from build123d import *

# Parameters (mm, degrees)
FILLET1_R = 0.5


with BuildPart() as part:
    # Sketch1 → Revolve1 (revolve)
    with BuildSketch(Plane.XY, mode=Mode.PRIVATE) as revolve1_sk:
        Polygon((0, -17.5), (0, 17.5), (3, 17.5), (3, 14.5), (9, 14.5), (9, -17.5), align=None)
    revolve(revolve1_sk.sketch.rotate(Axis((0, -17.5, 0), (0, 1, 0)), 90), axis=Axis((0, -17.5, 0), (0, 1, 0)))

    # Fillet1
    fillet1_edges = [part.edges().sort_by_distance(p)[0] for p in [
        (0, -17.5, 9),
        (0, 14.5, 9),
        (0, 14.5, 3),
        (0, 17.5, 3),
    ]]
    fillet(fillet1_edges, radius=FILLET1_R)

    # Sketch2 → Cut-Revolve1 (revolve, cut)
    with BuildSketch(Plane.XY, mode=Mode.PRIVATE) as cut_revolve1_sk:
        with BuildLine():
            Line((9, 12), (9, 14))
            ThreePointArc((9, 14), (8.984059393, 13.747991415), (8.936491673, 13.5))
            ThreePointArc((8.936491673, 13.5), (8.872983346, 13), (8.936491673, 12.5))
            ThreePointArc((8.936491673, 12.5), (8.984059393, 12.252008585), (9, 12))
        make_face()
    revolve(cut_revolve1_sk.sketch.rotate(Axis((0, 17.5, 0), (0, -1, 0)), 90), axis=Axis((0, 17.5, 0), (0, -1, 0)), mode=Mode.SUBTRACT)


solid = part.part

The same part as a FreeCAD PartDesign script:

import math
import FreeCAD as App
import Part
import Sketcher
from FreeCAD import Vector


def edges_at(feature, points):
    """Names of the edges that pass closest to the given points."""
    edges = feature.Shape.Edges
    near = lambda p: min(range(len(edges)), key=lambda i: edges[i].distToShape(Part.Vertex(*p))[0])
    return sorted({f"Edge{near(p) + 1}" for p in points})


def add_polygon(sketch, points):
    """Adds a closed chain of lines whose ends are joined by coincident constraints."""
    first, n = sketch.GeometryCount, len(points)
    for a, b in zip(points, points[1:] + points[:1]):
        sketch.addGeometry(Part.LineSegment(App.Vector(*a, 0), App.Vector(*b, 0)), False)
    for i in range(n):
        sketch.addConstraint(Sketcher.Constraint("Coincident", first + i, 2, first + (i + 1) % n, 1))

doc = App.newDocument("Part")
body = doc.addObject("PartDesign::Body", "Body")

# Sketch on XY plane
sketch1 = body.newObject("Sketcher::SketchObject", "Sketch")
sketch1.AttachmentSupport = (doc.getObject("XY_Plane"), [""])
sketch1.MapMode = "FlatFace"
add_polygon(sketch1, [(0, 17.5), (0, -17.5), (9, -17.5), (9, 14.5), (3, 14.5), (3, 17.5)])  # lines 0-5
sketch1.addConstraint([
    Sketcher.Constraint("Vertical", 0),
    Sketcher.Constraint("Horizontal", 1),
    Sketcher.Constraint("Vertical", 2),
    Sketcher.Constraint("Horizontal", 3),
    Sketcher.Constraint("Vertical", 4),
    Sketcher.Constraint("Horizontal", 5),
    Sketcher.Constraint("Symmetric", 0, 2, 5, 2, -1, 1),
    Sketcher.Constraint("Equal", 5, 4),
    Sketcher.Constraint("DistanceX", 1, 1, 1, 2, 9.0),
    Sketcher.Constraint("DistanceX", 3, 2, 3, 1, 6.0),
    Sketcher.Constraint("DistanceY", 0, 2, 0, 1, 35.0),
])
revolution = body.newObject("PartDesign::Revolution", "Revolution")
revolution.Profile = sketch1
revolution.ReferenceAxis = (sketch1, ["V_Axis"])
revolution.Angle = 360
doc.recompute()

fillet = body.newObject("PartDesign::Fillet", "Fillet")
fillet.Base = (revolution, edges_at(revolution, [
    (0, -17.5, 9),
    (0, 14.5, 9),
    (0, 14.5, 3),
    (0, 17.5, 3),
]))
fillet.Radius = 0.5

# Sketch on XY plane
sketch2 = body.newObject("Sketcher::SketchObject", "Sketch001")
sketch2.AttachmentSupport = (doc.getObject("XY_Plane"), [""])
sketch2.MapMode = "FlatFace"
sketch2.addGeometry([
    Part.LineSegment(Vector(9, 12, 0), Vector(9, 14, 0)),
    Part.ArcOfCircle(Part.Circle(Vector(7, 14, 0), Vector(0, 0, 1), 2), math.radians(-14.48), math.radians(0)),
    Part.ArcOfCircle(Part.Circle(Vector(10.9, 13, 0), Vector(0, 0, 1), 2), math.radians(166), math.radians(194)),
    Part.ArcOfCircle(Part.Circle(Vector(7, 12, 0), Vector(0, 0, 1), 2), math.radians(0), math.radians(14.48)),
], False)
sketch2.addConstraint([
    Sketcher.Constraint("Tangent", 0, 2, 1, 2),
    Sketcher.Constraint("Tangent", 1, 1, 2, 1),
    Sketcher.Constraint("Tangent", 2, 2, 3, 2),
    Sketcher.Constraint("Tangent", 3, 1, 0, 1),
    Sketcher.Constraint("Vertical", 0),
    Sketcher.Constraint("Equal", 1, 2),
    Sketcher.Constraint("Equal", 2, 3),
    Sketcher.Constraint("Radius", 1, 2.0),
    Sketcher.Constraint("DistanceY", 0, 1, 0, 2, 2.0),
    Sketcher.Constraint("DistanceX", -1, 1, 1, 3, 7.0),
    Sketcher.Constraint("DistanceY", -1, 1, 1, 3, 14.0),
])
groove = body.newObject("PartDesign::Groove", "Groove")
groove.Profile = sketch2
groove.ReferenceAxis = (sketch2, ["V_Axis"])
groove.Angle = 360

doc.recompute()
